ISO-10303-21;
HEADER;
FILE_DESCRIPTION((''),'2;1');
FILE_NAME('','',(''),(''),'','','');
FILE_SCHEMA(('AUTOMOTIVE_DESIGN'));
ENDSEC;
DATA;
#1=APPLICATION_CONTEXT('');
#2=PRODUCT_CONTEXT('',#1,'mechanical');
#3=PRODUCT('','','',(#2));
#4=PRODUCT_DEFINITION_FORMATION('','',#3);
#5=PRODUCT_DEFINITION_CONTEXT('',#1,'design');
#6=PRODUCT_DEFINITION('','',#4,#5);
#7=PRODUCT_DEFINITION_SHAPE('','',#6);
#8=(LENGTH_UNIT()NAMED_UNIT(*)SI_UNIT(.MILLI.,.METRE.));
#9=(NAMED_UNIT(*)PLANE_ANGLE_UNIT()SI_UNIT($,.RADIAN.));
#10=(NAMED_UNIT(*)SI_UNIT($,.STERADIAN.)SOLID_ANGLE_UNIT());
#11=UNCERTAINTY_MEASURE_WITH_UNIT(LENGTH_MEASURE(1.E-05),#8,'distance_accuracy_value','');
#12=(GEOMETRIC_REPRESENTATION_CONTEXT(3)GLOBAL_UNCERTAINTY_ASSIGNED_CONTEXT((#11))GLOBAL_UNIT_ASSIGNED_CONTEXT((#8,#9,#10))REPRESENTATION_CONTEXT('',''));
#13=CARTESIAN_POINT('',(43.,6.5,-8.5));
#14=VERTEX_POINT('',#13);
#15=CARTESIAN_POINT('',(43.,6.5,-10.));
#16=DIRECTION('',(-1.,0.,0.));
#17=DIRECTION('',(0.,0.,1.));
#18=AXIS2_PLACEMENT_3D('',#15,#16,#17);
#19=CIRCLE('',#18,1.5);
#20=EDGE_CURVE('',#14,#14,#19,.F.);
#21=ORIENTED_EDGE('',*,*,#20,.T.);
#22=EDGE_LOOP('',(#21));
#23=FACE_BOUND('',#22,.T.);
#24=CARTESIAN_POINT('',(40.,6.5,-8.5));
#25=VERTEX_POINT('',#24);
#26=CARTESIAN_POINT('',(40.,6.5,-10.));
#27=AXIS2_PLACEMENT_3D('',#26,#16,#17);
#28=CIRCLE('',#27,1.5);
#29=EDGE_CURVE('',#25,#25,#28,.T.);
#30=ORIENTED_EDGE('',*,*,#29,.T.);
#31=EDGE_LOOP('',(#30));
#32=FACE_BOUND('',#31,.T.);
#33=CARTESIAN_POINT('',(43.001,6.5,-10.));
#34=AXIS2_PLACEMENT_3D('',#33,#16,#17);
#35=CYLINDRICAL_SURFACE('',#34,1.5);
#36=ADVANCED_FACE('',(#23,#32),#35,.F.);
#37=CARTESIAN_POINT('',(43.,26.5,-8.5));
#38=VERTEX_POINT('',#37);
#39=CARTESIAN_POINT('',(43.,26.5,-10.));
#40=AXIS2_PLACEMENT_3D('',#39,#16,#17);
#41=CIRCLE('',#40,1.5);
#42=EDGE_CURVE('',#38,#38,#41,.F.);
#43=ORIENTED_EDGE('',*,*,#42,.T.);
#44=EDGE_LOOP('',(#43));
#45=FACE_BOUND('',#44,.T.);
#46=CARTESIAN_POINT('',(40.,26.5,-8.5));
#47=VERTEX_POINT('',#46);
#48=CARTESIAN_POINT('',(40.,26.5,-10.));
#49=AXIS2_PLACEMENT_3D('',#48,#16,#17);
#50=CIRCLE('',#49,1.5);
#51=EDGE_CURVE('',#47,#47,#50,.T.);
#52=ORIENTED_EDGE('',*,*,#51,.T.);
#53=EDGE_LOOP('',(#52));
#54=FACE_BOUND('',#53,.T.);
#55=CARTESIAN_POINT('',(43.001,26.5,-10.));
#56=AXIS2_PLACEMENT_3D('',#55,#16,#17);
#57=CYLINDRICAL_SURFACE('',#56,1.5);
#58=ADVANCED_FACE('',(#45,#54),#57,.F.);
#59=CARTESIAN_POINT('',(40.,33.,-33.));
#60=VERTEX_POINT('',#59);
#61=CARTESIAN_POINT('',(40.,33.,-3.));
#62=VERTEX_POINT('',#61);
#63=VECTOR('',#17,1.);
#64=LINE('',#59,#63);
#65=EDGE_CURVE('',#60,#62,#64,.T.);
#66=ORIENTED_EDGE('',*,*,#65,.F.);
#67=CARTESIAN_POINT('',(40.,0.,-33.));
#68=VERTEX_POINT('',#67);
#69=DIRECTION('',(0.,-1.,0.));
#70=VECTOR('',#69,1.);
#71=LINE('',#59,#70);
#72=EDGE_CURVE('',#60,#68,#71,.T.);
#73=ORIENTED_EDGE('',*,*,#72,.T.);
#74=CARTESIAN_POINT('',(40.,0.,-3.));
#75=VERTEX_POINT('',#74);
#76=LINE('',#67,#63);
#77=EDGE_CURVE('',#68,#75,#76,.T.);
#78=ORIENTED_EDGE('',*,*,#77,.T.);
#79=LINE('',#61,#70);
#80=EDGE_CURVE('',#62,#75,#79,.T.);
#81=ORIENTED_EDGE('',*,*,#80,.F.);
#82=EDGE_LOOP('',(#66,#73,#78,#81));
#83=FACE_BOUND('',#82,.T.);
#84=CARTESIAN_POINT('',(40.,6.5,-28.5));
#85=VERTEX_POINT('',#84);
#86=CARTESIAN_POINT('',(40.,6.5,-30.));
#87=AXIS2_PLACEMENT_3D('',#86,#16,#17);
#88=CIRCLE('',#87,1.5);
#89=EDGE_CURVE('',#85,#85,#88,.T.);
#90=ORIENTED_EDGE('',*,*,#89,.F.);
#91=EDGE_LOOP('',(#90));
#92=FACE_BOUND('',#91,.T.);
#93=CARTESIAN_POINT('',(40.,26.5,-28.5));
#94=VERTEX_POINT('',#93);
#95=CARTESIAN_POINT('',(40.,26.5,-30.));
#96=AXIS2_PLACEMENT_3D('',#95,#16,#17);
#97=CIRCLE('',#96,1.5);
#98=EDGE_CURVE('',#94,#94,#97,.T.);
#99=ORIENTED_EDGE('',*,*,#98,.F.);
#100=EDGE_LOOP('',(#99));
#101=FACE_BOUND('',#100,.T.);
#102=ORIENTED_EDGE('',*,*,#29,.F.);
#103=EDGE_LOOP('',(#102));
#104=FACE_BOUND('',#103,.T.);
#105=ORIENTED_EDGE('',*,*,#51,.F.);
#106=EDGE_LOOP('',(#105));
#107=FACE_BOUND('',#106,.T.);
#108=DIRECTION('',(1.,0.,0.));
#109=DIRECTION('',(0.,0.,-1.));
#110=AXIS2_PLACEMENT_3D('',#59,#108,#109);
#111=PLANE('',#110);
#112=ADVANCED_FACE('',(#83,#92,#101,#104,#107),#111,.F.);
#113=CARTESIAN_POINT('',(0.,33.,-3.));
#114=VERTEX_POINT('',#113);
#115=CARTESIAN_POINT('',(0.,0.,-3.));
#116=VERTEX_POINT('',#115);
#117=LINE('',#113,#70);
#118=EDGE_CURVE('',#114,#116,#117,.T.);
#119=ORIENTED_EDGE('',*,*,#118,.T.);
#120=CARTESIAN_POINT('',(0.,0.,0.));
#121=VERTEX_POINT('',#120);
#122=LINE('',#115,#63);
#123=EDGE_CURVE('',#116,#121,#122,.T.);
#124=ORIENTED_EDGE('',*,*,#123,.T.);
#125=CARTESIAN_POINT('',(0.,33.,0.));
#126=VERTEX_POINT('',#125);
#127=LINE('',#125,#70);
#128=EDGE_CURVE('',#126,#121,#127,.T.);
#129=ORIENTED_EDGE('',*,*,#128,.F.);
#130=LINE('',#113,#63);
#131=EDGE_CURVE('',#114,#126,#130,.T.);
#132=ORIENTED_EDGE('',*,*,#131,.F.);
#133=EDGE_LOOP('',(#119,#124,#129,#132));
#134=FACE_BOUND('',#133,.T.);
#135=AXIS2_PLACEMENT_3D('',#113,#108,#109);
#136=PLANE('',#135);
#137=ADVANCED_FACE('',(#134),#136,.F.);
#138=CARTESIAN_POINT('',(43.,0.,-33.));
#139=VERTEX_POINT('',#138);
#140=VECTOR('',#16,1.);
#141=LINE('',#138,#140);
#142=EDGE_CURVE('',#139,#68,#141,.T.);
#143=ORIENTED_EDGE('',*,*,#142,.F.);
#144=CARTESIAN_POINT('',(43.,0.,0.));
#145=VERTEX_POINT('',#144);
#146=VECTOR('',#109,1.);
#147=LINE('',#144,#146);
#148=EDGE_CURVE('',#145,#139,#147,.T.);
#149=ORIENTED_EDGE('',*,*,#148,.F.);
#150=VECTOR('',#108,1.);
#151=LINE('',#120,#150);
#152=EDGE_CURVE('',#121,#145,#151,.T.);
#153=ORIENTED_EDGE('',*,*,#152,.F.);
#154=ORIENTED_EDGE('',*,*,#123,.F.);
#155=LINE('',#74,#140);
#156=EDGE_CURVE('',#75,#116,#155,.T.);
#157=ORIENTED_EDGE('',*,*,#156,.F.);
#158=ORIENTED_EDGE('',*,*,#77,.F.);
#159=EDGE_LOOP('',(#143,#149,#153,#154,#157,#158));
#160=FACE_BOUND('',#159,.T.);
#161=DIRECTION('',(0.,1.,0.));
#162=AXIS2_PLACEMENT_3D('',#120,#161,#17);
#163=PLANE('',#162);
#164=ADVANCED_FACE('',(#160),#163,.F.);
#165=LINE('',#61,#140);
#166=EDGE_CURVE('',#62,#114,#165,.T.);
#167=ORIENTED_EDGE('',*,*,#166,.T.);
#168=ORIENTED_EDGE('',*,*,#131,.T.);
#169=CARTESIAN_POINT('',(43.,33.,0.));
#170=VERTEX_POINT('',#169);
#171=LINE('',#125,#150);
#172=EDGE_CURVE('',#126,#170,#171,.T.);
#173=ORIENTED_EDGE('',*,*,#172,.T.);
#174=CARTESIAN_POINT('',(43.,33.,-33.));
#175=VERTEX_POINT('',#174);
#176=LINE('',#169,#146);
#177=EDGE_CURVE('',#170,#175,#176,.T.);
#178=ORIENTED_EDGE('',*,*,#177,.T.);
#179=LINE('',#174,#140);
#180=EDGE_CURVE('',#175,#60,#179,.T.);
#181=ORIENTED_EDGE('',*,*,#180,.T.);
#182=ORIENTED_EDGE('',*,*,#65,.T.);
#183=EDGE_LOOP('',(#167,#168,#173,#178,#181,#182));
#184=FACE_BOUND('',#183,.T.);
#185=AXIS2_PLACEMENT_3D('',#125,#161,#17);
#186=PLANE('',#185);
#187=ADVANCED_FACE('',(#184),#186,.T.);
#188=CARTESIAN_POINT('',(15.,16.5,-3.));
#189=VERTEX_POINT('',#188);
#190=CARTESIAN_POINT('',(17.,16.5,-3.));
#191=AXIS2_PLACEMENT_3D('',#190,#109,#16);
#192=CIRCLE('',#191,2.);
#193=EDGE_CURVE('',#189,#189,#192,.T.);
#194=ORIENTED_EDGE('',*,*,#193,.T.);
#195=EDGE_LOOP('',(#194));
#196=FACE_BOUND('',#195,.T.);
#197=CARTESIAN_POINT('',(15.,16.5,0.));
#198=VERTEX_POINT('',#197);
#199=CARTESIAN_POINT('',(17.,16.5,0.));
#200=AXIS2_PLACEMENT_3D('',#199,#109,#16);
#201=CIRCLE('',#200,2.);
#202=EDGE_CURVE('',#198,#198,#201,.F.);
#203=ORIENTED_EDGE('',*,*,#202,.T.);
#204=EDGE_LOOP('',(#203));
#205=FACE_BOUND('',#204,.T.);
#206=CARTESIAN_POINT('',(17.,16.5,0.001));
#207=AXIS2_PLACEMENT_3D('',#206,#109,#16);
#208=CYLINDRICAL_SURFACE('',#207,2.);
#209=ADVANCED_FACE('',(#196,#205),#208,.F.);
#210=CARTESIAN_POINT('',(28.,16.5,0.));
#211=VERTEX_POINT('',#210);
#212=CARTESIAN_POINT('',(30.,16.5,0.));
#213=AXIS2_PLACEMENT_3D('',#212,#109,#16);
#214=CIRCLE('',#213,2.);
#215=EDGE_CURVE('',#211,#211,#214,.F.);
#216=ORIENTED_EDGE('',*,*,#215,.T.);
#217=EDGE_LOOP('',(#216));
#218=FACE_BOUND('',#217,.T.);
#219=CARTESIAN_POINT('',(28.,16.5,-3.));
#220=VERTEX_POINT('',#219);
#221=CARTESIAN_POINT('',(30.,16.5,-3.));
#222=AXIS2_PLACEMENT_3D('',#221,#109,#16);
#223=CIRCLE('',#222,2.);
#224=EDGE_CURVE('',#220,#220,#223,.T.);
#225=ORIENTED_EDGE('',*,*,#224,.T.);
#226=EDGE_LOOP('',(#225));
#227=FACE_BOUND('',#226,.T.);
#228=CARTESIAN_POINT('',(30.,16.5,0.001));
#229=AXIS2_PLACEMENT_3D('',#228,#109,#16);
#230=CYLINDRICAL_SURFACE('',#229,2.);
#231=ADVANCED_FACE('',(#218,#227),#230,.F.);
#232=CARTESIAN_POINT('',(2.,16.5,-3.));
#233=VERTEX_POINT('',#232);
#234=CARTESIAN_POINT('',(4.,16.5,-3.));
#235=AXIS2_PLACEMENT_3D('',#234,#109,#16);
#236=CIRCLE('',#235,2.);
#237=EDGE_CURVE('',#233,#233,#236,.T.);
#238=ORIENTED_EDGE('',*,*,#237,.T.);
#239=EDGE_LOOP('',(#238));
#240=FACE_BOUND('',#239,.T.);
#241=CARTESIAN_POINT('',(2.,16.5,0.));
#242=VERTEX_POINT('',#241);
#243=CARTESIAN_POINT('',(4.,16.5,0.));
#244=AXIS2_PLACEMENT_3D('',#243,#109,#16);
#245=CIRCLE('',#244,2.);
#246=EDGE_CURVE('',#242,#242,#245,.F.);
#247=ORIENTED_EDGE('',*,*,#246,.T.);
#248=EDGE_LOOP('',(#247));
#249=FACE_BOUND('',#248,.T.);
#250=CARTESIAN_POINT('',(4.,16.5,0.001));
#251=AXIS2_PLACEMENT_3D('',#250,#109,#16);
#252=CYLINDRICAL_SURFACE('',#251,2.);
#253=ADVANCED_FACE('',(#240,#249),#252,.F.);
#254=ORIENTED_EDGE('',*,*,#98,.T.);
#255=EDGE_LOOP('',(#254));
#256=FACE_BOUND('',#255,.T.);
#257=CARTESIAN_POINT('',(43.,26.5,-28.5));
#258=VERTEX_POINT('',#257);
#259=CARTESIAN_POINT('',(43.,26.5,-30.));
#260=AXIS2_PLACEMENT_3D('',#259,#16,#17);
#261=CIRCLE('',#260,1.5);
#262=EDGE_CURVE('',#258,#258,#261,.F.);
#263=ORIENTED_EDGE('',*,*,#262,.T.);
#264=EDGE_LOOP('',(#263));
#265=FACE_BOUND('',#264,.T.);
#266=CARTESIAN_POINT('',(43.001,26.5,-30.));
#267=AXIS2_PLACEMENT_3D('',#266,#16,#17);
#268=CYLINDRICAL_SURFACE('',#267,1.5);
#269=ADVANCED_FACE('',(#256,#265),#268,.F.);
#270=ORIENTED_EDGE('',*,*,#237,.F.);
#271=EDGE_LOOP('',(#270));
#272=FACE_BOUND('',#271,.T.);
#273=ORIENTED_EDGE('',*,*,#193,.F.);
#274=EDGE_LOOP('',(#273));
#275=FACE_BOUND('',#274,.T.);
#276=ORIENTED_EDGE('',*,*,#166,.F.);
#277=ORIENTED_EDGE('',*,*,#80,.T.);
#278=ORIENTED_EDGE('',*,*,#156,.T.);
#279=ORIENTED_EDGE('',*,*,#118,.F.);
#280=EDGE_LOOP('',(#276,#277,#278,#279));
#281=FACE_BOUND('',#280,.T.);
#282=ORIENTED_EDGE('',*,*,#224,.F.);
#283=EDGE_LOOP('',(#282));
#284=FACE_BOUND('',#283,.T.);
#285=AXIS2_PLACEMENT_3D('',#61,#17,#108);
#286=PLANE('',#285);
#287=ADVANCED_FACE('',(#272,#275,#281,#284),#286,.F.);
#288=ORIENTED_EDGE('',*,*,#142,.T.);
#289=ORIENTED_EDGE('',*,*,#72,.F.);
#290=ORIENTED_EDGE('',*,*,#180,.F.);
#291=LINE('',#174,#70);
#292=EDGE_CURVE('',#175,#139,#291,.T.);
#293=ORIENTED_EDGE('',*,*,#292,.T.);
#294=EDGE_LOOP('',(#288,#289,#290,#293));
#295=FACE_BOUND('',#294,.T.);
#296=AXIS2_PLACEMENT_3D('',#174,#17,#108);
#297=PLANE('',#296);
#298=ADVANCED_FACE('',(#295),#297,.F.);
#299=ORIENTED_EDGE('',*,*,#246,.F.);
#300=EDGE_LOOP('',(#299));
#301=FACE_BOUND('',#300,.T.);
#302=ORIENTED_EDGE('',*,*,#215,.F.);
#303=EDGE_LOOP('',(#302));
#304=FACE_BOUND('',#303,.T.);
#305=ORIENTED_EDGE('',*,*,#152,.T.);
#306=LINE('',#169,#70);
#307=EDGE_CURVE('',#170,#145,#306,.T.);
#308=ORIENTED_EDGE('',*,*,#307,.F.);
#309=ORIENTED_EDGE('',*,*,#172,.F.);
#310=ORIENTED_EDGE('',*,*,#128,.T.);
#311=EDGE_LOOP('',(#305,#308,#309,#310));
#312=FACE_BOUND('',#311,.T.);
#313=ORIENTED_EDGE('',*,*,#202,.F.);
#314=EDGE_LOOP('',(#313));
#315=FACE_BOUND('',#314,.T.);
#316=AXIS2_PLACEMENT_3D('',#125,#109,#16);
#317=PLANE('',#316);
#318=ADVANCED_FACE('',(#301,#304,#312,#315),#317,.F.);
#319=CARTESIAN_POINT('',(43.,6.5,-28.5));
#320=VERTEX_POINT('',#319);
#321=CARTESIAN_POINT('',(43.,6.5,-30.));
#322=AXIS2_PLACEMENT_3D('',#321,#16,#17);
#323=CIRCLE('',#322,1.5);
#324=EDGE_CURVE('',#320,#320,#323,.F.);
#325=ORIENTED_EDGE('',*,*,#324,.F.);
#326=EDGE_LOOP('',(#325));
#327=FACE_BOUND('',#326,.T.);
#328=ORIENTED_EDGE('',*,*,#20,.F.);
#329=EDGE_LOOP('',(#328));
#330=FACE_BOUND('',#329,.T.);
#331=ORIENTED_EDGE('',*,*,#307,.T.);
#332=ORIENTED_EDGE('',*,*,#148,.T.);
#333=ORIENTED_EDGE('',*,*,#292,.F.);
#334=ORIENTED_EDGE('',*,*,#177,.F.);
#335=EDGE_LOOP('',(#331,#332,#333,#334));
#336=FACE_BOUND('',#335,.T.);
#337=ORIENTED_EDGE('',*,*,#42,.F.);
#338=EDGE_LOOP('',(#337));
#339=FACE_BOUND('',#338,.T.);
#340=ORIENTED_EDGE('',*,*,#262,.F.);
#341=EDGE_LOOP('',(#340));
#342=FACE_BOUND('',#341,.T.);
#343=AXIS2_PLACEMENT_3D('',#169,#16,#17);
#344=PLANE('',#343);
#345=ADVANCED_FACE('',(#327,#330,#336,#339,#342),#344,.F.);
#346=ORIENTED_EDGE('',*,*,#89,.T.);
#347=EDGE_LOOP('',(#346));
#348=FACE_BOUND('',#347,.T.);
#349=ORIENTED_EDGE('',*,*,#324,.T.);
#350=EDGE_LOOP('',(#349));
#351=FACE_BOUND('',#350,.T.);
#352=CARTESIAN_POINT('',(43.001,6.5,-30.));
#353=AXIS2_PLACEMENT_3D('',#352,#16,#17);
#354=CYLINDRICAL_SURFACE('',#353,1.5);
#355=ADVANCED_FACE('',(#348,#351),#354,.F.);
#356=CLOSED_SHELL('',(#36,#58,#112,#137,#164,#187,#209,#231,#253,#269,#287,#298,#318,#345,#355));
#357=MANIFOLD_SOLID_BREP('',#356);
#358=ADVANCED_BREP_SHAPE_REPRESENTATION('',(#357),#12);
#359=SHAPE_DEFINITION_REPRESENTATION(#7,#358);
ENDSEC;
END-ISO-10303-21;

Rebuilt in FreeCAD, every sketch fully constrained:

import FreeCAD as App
import Part
import Sketcher

V = App.Vector

doc = App.newDocument("Part")
params = doc.addObject("Spreadsheet::Sheet", "Params")
for row, (alias, value) in enumerate([
    ("sketch1_width", "43 mm"),
    ("sketch1_width2", "3 mm"),
    ("sketch1_height", "33 mm"),
    ("pad1_length", "33 mm"),
    ("sketch2_diameter", "3 mm"),
    ("sketch3_diameter", "3 mm"),
    ("sketch4_diameter", "3 mm"),
    ("sketch5_diameter", "3 mm"),
    ("sketch6_diameter", "4 mm"),
    ("sketch7_diameter", "4 mm"),
    ("sketch8_diameter", "4 mm"),
], start=1):
    params.set(f"A{row}", alias)
    params.set(f"B{row}", "=" + value)
    params.setAlias(f"B{row}", alias)

body = doc.addObject("PartDesign::Body", "Body")

sketch1 = doc.addObject("Sketcher::SketchObject", "Sketch")
body.addObject(sketch1)
sketch1.AttachmentSupport = (doc.XZ_Plane, [""])
sketch1.MapMode = "FlatFace"
sketch1.addGeometry(Part.LineSegment(V(0, 0, 0), V(43, 0, 0)), False)
sketch1.addGeometry(Part.LineSegment(V(43, 0, 0), V(43, -33, 0)), False)
sketch1.addGeometry(Part.LineSegment(V(43, -33, 0), V(40, -33, 0)), False)
sketch1.addGeometry(Part.LineSegment(V(40, -33, 0), V(40, -3, 0)), False)
sketch1.addGeometry(Part.LineSegment(V(40, -3, 0), V(0, -3, 0)), False)
sketch1.addGeometry(Part.LineSegment(V(0, -3, 0), V(0, 0, 0)), False)
sketch1.addConstraint(Sketcher.Constraint("Coincident", 0, 2, 1, 1))
sketch1.addConstraint(Sketcher.Constraint("Coincident", 1, 2, 2, 1))
sketch1.addConstraint(Sketcher.Constraint("Coincident", 2, 2, 3, 1))
sketch1.addConstraint(Sketcher.Constraint("Coincident", 3, 2, 4, 1))
sketch1.addConstraint(Sketcher.Constraint("Coincident", 4, 2, 5, 1))
sketch1.addConstraint(Sketcher.Constraint("Coincident", 5, 2, 0, 1))
sketch1.addConstraint(Sketcher.Constraint("Horizontal", 0))
sketch1.addConstraint(Sketcher.Constraint("Vertical", 1))
sketch1.addConstraint(Sketcher.Constraint("Horizontal", 2))
sketch1.addConstraint(Sketcher.Constraint("Vertical", 3))
sketch1.addConstraint(Sketcher.Constraint("Horizontal", 4))
sketch1.addConstraint(Sketcher.Constraint("Vertical", 5))
sketch1.addConstraint(Sketcher.Constraint("Coincident", 5, 2, -1, 1))
sketch1.addConstraint(Sketcher.Constraint("Equal", 2, 5))
sketch1.addConstraint(Sketcher.Constraint("DistanceX", 0, 1, 0, 2, 43.0))
sketch1.addConstraint(Sketcher.Constraint("DistanceX", 2, 2, 2, 1, 3.0))
sketch1.addConstraint(Sketcher.Constraint("DistanceY", 1, 2, 1, 1, 33.0))
sketch1.setExpression("Constraints[14]", "Params.sketch1_width")
sketch1.setExpression("Constraints[15]", "Params.sketch1_width2")
sketch1.setExpression("Constraints[16]", "Params.sketch1_height")
pad1 = doc.addObject("PartDesign::Pad", "Pad")
body.addObject(pad1)
pad1.Profile = sketch1
pad1.setExpression("Length", "Params.pad1_length")
pad1.Reversed = True

sketch2 = doc.addObject("Sketcher::SketchObject", "Sketch001")
body.addObject(sketch2)
sketch2.AttachmentSupport = (doc.YZ_Plane, [""])
sketch2.MapMode = "FlatFace"
sketch2.AttachmentOffset = App.Placement(V(0, 0, 40), App.Rotation())
sketch2.addGeometry(Part.Circle(V(6.5, -30, 0), V(0, 0, 1), 1.5), False)
sketch2.addConstraint(Sketcher.Constraint("Diameter", 0, 3.0))
sketch2.addConstraint(Sketcher.Constraint("DistanceY", 0, 3, -1, 1, 30.0))
sketch2.addConstraint(Sketcher.Constraint("DistanceX", -1, 1, 0, 3, 6.5))
sketch2.setExpression("Constraints[0]", "Params.sketch2_diameter")
pocket1 = doc.addObject("PartDesign::Pocket", "Pocket")
body.addObject(pocket1)
pocket1.Profile = sketch2
pocket1.Type = "UpToFirst"
pocket1.Reversed = True

sketch3 = doc.addObject("Sketcher::SketchObject", "Sketch002")
body.addObject(sketch3)
sketch3.AttachmentSupport = (doc.YZ_Plane, [""])
sketch3.MapMode = "FlatFace"
sketch3.AttachmentOffset = App.Placement(V(0, 0, 40), App.Rotation())
sketch3.addGeometry(Part.Circle(V(26.5, -30, 0), V(0, 0, 1), 1.5), False)
sketch3.addConstraint(Sketcher.Constraint("Diameter", 0, 3.0))
sketch3.addConstraint(Sketcher.Constraint("DistanceY", 0, 3, -1, 1, 30.0))
sketch3.addConstraint(Sketcher.Constraint("DistanceX", -1, 1, 0, 3, 26.5))
sketch3.setExpression("Constraints[0]", "Params.sketch3_diameter")
pocket2 = doc.addObject("PartDesign::Pocket", "Pocket001")
body.addObject(pocket2)
pocket2.Profile = sketch3
pocket2.Type = "UpToFirst"
pocket2.Reversed = True

sketch4 = doc.addObject("Sketcher::SketchObject", "Sketch003")
body.addObject(sketch4)
sketch4.AttachmentSupport = (doc.YZ_Plane, [""])
sketch4.MapMode = "FlatFace"
sketch4.AttachmentOffset = App.Placement(V(0, 0, 40), App.Rotation())
sketch4.addGeometry(Part.Circle(V(6.5, -10, 0), V(0, 0, 1), 1.5), False)
sketch4.addConstraint(Sketcher.Constraint("Diameter", 0, 3.0))
sketch4.addConstraint(Sketcher.Constraint("DistanceY", 0, 3, -1, 1, 10.0))
sketch4.addConstraint(Sketcher.Constraint("DistanceX", -1, 1, 0, 3, 6.5))
sketch4.setExpression("Constraints[0]", "Params.sketch4_diameter")
pocket3 = doc.addObject("PartDesign::Pocket", "Pocket002")
body.addObject(pocket3)
pocket3.Profile = sketch4
pocket3.Type = "UpToFirst"
pocket3.Reversed = True

sketch5 = doc.addObject("Sketcher::SketchObject", "Sketch004")
body.addObject(sketch5)
sketch5.AttachmentSupport = (doc.YZ_Plane, [""])
sketch5.MapMode = "FlatFace"
sketch5.AttachmentOffset = App.Placement(V(0, 0, 40), App.Rotation())
sketch5.addGeometry(Part.Circle(V(26.5, -10, 0), V(0, 0, 1), 1.5), False)
sketch5.addConstraint(Sketcher.Constraint("Diameter", 0, 3.0))
sketch5.addConstraint(Sketcher.Constraint("DistanceY", 0, 3, -1, 1, 10.0))
sketch5.addConstraint(Sketcher.Constraint("DistanceX", -1, 1, 0, 3, 26.5))
sketch5.setExpression("Constraints[0]", "Params.sketch5_diameter")
pocket4 = doc.addObject("PartDesign::Pocket", "Pocket003")
body.addObject(pocket4)
pocket4.Profile = sketch5
pocket4.Type = "UpToFirst"
pocket4.Reversed = True

sketch6 = doc.addObject("Sketcher::SketchObject", "Sketch005")
body.addObject(sketch6)
sketch6.AttachmentSupport = (doc.XY_Plane, [""])
sketch6.MapMode = "FlatFace"
sketch6.AttachmentOffset = App.Placement(V(0, 0, -3), App.Rotation())
sketch6.addGeometry(Part.Circle(V(4, 16.5, 0), V(0, 0, 1), 2), False)
sketch6.addConstraint(Sketcher.Constraint("Diameter", 0, 4.0))
sketch6.addConstraint(Sketcher.Constraint("DistanceX", -1, 1, 0, 3, 4.0))
sketch6.addConstraint(Sketcher.Constraint("DistanceY", -1, 1, 0, 3, 16.5))
sketch6.setExpression("Constraints[0]", "Params.sketch6_diameter")
pocket5 = doc.addObject("PartDesign::Pocket", "Pocket004")
body.addObject(pocket5)
pocket5.Profile = sketch6
pocket5.Type = "UpToFirst"
pocket5.Reversed = True

sketch7 = doc.addObject("Sketcher::SketchObject", "Sketch006")
body.addObject(sketch7)
sketch7.AttachmentSupport = (doc.XY_Plane, [""])
sketch7.MapMode = "FlatFace"
sketch7.AttachmentOffset = App.Placement(V(0, 0, -3), App.Rotation())
sketch7.addGeometry(Part.Circle(V(30, 16.5, 0), V(0, 0, 1), 2), False)
sketch7.addConstraint(Sketcher.Constraint("Diameter", 0, 4.0))
sketch7.addConstraint(Sketcher.Constraint("DistanceX", -1, 1, 0, 3, 30.0))
sketch7.addConstraint(Sketcher.Constraint("DistanceY", -1, 1, 0, 3, 16.5))
sketch7.setExpression("Constraints[0]", "Params.sketch7_diameter")
pocket6 = doc.addObject("PartDesign::Pocket", "Pocket005")
body.addObject(pocket6)
pocket6.Profile = sketch7
pocket6.Type = "UpToFirst"
pocket6.Reversed = True

sketch8 = doc.addObject("Sketcher::SketchObject", "Sketch007")
body.addObject(sketch8)
sketch8.AttachmentSupport = (doc.XY_Plane, [""])
sketch8.MapMode = "FlatFace"
sketch8.AttachmentOffset = App.Placement(V(0, 0, -3), App.Rotation())
sketch8.addGeometry(Part.Circle(V(17, 16.5, 0), V(0, 0, 1), 2), False)
sketch8.addConstraint(Sketcher.Constraint("Diameter", 0, 4.0))
sketch8.addConstraint(Sketcher.Constraint("DistanceX", -1, 1, 0, 3, 17.0))
sketch8.addConstraint(Sketcher.Constraint("DistanceY", -1, 1, 0, 3, 16.5))
sketch8.setExpression("Constraints[0]", "Params.sketch8_diameter")
pocket7 = doc.addObject("PartDesign::Pocket", "Pocket006")
body.addObject(pocket7)
pocket7.Profile = sketch8
pocket7.Type = "UpToFirst"
pocket7.Reversed = True

doc.recompute()
